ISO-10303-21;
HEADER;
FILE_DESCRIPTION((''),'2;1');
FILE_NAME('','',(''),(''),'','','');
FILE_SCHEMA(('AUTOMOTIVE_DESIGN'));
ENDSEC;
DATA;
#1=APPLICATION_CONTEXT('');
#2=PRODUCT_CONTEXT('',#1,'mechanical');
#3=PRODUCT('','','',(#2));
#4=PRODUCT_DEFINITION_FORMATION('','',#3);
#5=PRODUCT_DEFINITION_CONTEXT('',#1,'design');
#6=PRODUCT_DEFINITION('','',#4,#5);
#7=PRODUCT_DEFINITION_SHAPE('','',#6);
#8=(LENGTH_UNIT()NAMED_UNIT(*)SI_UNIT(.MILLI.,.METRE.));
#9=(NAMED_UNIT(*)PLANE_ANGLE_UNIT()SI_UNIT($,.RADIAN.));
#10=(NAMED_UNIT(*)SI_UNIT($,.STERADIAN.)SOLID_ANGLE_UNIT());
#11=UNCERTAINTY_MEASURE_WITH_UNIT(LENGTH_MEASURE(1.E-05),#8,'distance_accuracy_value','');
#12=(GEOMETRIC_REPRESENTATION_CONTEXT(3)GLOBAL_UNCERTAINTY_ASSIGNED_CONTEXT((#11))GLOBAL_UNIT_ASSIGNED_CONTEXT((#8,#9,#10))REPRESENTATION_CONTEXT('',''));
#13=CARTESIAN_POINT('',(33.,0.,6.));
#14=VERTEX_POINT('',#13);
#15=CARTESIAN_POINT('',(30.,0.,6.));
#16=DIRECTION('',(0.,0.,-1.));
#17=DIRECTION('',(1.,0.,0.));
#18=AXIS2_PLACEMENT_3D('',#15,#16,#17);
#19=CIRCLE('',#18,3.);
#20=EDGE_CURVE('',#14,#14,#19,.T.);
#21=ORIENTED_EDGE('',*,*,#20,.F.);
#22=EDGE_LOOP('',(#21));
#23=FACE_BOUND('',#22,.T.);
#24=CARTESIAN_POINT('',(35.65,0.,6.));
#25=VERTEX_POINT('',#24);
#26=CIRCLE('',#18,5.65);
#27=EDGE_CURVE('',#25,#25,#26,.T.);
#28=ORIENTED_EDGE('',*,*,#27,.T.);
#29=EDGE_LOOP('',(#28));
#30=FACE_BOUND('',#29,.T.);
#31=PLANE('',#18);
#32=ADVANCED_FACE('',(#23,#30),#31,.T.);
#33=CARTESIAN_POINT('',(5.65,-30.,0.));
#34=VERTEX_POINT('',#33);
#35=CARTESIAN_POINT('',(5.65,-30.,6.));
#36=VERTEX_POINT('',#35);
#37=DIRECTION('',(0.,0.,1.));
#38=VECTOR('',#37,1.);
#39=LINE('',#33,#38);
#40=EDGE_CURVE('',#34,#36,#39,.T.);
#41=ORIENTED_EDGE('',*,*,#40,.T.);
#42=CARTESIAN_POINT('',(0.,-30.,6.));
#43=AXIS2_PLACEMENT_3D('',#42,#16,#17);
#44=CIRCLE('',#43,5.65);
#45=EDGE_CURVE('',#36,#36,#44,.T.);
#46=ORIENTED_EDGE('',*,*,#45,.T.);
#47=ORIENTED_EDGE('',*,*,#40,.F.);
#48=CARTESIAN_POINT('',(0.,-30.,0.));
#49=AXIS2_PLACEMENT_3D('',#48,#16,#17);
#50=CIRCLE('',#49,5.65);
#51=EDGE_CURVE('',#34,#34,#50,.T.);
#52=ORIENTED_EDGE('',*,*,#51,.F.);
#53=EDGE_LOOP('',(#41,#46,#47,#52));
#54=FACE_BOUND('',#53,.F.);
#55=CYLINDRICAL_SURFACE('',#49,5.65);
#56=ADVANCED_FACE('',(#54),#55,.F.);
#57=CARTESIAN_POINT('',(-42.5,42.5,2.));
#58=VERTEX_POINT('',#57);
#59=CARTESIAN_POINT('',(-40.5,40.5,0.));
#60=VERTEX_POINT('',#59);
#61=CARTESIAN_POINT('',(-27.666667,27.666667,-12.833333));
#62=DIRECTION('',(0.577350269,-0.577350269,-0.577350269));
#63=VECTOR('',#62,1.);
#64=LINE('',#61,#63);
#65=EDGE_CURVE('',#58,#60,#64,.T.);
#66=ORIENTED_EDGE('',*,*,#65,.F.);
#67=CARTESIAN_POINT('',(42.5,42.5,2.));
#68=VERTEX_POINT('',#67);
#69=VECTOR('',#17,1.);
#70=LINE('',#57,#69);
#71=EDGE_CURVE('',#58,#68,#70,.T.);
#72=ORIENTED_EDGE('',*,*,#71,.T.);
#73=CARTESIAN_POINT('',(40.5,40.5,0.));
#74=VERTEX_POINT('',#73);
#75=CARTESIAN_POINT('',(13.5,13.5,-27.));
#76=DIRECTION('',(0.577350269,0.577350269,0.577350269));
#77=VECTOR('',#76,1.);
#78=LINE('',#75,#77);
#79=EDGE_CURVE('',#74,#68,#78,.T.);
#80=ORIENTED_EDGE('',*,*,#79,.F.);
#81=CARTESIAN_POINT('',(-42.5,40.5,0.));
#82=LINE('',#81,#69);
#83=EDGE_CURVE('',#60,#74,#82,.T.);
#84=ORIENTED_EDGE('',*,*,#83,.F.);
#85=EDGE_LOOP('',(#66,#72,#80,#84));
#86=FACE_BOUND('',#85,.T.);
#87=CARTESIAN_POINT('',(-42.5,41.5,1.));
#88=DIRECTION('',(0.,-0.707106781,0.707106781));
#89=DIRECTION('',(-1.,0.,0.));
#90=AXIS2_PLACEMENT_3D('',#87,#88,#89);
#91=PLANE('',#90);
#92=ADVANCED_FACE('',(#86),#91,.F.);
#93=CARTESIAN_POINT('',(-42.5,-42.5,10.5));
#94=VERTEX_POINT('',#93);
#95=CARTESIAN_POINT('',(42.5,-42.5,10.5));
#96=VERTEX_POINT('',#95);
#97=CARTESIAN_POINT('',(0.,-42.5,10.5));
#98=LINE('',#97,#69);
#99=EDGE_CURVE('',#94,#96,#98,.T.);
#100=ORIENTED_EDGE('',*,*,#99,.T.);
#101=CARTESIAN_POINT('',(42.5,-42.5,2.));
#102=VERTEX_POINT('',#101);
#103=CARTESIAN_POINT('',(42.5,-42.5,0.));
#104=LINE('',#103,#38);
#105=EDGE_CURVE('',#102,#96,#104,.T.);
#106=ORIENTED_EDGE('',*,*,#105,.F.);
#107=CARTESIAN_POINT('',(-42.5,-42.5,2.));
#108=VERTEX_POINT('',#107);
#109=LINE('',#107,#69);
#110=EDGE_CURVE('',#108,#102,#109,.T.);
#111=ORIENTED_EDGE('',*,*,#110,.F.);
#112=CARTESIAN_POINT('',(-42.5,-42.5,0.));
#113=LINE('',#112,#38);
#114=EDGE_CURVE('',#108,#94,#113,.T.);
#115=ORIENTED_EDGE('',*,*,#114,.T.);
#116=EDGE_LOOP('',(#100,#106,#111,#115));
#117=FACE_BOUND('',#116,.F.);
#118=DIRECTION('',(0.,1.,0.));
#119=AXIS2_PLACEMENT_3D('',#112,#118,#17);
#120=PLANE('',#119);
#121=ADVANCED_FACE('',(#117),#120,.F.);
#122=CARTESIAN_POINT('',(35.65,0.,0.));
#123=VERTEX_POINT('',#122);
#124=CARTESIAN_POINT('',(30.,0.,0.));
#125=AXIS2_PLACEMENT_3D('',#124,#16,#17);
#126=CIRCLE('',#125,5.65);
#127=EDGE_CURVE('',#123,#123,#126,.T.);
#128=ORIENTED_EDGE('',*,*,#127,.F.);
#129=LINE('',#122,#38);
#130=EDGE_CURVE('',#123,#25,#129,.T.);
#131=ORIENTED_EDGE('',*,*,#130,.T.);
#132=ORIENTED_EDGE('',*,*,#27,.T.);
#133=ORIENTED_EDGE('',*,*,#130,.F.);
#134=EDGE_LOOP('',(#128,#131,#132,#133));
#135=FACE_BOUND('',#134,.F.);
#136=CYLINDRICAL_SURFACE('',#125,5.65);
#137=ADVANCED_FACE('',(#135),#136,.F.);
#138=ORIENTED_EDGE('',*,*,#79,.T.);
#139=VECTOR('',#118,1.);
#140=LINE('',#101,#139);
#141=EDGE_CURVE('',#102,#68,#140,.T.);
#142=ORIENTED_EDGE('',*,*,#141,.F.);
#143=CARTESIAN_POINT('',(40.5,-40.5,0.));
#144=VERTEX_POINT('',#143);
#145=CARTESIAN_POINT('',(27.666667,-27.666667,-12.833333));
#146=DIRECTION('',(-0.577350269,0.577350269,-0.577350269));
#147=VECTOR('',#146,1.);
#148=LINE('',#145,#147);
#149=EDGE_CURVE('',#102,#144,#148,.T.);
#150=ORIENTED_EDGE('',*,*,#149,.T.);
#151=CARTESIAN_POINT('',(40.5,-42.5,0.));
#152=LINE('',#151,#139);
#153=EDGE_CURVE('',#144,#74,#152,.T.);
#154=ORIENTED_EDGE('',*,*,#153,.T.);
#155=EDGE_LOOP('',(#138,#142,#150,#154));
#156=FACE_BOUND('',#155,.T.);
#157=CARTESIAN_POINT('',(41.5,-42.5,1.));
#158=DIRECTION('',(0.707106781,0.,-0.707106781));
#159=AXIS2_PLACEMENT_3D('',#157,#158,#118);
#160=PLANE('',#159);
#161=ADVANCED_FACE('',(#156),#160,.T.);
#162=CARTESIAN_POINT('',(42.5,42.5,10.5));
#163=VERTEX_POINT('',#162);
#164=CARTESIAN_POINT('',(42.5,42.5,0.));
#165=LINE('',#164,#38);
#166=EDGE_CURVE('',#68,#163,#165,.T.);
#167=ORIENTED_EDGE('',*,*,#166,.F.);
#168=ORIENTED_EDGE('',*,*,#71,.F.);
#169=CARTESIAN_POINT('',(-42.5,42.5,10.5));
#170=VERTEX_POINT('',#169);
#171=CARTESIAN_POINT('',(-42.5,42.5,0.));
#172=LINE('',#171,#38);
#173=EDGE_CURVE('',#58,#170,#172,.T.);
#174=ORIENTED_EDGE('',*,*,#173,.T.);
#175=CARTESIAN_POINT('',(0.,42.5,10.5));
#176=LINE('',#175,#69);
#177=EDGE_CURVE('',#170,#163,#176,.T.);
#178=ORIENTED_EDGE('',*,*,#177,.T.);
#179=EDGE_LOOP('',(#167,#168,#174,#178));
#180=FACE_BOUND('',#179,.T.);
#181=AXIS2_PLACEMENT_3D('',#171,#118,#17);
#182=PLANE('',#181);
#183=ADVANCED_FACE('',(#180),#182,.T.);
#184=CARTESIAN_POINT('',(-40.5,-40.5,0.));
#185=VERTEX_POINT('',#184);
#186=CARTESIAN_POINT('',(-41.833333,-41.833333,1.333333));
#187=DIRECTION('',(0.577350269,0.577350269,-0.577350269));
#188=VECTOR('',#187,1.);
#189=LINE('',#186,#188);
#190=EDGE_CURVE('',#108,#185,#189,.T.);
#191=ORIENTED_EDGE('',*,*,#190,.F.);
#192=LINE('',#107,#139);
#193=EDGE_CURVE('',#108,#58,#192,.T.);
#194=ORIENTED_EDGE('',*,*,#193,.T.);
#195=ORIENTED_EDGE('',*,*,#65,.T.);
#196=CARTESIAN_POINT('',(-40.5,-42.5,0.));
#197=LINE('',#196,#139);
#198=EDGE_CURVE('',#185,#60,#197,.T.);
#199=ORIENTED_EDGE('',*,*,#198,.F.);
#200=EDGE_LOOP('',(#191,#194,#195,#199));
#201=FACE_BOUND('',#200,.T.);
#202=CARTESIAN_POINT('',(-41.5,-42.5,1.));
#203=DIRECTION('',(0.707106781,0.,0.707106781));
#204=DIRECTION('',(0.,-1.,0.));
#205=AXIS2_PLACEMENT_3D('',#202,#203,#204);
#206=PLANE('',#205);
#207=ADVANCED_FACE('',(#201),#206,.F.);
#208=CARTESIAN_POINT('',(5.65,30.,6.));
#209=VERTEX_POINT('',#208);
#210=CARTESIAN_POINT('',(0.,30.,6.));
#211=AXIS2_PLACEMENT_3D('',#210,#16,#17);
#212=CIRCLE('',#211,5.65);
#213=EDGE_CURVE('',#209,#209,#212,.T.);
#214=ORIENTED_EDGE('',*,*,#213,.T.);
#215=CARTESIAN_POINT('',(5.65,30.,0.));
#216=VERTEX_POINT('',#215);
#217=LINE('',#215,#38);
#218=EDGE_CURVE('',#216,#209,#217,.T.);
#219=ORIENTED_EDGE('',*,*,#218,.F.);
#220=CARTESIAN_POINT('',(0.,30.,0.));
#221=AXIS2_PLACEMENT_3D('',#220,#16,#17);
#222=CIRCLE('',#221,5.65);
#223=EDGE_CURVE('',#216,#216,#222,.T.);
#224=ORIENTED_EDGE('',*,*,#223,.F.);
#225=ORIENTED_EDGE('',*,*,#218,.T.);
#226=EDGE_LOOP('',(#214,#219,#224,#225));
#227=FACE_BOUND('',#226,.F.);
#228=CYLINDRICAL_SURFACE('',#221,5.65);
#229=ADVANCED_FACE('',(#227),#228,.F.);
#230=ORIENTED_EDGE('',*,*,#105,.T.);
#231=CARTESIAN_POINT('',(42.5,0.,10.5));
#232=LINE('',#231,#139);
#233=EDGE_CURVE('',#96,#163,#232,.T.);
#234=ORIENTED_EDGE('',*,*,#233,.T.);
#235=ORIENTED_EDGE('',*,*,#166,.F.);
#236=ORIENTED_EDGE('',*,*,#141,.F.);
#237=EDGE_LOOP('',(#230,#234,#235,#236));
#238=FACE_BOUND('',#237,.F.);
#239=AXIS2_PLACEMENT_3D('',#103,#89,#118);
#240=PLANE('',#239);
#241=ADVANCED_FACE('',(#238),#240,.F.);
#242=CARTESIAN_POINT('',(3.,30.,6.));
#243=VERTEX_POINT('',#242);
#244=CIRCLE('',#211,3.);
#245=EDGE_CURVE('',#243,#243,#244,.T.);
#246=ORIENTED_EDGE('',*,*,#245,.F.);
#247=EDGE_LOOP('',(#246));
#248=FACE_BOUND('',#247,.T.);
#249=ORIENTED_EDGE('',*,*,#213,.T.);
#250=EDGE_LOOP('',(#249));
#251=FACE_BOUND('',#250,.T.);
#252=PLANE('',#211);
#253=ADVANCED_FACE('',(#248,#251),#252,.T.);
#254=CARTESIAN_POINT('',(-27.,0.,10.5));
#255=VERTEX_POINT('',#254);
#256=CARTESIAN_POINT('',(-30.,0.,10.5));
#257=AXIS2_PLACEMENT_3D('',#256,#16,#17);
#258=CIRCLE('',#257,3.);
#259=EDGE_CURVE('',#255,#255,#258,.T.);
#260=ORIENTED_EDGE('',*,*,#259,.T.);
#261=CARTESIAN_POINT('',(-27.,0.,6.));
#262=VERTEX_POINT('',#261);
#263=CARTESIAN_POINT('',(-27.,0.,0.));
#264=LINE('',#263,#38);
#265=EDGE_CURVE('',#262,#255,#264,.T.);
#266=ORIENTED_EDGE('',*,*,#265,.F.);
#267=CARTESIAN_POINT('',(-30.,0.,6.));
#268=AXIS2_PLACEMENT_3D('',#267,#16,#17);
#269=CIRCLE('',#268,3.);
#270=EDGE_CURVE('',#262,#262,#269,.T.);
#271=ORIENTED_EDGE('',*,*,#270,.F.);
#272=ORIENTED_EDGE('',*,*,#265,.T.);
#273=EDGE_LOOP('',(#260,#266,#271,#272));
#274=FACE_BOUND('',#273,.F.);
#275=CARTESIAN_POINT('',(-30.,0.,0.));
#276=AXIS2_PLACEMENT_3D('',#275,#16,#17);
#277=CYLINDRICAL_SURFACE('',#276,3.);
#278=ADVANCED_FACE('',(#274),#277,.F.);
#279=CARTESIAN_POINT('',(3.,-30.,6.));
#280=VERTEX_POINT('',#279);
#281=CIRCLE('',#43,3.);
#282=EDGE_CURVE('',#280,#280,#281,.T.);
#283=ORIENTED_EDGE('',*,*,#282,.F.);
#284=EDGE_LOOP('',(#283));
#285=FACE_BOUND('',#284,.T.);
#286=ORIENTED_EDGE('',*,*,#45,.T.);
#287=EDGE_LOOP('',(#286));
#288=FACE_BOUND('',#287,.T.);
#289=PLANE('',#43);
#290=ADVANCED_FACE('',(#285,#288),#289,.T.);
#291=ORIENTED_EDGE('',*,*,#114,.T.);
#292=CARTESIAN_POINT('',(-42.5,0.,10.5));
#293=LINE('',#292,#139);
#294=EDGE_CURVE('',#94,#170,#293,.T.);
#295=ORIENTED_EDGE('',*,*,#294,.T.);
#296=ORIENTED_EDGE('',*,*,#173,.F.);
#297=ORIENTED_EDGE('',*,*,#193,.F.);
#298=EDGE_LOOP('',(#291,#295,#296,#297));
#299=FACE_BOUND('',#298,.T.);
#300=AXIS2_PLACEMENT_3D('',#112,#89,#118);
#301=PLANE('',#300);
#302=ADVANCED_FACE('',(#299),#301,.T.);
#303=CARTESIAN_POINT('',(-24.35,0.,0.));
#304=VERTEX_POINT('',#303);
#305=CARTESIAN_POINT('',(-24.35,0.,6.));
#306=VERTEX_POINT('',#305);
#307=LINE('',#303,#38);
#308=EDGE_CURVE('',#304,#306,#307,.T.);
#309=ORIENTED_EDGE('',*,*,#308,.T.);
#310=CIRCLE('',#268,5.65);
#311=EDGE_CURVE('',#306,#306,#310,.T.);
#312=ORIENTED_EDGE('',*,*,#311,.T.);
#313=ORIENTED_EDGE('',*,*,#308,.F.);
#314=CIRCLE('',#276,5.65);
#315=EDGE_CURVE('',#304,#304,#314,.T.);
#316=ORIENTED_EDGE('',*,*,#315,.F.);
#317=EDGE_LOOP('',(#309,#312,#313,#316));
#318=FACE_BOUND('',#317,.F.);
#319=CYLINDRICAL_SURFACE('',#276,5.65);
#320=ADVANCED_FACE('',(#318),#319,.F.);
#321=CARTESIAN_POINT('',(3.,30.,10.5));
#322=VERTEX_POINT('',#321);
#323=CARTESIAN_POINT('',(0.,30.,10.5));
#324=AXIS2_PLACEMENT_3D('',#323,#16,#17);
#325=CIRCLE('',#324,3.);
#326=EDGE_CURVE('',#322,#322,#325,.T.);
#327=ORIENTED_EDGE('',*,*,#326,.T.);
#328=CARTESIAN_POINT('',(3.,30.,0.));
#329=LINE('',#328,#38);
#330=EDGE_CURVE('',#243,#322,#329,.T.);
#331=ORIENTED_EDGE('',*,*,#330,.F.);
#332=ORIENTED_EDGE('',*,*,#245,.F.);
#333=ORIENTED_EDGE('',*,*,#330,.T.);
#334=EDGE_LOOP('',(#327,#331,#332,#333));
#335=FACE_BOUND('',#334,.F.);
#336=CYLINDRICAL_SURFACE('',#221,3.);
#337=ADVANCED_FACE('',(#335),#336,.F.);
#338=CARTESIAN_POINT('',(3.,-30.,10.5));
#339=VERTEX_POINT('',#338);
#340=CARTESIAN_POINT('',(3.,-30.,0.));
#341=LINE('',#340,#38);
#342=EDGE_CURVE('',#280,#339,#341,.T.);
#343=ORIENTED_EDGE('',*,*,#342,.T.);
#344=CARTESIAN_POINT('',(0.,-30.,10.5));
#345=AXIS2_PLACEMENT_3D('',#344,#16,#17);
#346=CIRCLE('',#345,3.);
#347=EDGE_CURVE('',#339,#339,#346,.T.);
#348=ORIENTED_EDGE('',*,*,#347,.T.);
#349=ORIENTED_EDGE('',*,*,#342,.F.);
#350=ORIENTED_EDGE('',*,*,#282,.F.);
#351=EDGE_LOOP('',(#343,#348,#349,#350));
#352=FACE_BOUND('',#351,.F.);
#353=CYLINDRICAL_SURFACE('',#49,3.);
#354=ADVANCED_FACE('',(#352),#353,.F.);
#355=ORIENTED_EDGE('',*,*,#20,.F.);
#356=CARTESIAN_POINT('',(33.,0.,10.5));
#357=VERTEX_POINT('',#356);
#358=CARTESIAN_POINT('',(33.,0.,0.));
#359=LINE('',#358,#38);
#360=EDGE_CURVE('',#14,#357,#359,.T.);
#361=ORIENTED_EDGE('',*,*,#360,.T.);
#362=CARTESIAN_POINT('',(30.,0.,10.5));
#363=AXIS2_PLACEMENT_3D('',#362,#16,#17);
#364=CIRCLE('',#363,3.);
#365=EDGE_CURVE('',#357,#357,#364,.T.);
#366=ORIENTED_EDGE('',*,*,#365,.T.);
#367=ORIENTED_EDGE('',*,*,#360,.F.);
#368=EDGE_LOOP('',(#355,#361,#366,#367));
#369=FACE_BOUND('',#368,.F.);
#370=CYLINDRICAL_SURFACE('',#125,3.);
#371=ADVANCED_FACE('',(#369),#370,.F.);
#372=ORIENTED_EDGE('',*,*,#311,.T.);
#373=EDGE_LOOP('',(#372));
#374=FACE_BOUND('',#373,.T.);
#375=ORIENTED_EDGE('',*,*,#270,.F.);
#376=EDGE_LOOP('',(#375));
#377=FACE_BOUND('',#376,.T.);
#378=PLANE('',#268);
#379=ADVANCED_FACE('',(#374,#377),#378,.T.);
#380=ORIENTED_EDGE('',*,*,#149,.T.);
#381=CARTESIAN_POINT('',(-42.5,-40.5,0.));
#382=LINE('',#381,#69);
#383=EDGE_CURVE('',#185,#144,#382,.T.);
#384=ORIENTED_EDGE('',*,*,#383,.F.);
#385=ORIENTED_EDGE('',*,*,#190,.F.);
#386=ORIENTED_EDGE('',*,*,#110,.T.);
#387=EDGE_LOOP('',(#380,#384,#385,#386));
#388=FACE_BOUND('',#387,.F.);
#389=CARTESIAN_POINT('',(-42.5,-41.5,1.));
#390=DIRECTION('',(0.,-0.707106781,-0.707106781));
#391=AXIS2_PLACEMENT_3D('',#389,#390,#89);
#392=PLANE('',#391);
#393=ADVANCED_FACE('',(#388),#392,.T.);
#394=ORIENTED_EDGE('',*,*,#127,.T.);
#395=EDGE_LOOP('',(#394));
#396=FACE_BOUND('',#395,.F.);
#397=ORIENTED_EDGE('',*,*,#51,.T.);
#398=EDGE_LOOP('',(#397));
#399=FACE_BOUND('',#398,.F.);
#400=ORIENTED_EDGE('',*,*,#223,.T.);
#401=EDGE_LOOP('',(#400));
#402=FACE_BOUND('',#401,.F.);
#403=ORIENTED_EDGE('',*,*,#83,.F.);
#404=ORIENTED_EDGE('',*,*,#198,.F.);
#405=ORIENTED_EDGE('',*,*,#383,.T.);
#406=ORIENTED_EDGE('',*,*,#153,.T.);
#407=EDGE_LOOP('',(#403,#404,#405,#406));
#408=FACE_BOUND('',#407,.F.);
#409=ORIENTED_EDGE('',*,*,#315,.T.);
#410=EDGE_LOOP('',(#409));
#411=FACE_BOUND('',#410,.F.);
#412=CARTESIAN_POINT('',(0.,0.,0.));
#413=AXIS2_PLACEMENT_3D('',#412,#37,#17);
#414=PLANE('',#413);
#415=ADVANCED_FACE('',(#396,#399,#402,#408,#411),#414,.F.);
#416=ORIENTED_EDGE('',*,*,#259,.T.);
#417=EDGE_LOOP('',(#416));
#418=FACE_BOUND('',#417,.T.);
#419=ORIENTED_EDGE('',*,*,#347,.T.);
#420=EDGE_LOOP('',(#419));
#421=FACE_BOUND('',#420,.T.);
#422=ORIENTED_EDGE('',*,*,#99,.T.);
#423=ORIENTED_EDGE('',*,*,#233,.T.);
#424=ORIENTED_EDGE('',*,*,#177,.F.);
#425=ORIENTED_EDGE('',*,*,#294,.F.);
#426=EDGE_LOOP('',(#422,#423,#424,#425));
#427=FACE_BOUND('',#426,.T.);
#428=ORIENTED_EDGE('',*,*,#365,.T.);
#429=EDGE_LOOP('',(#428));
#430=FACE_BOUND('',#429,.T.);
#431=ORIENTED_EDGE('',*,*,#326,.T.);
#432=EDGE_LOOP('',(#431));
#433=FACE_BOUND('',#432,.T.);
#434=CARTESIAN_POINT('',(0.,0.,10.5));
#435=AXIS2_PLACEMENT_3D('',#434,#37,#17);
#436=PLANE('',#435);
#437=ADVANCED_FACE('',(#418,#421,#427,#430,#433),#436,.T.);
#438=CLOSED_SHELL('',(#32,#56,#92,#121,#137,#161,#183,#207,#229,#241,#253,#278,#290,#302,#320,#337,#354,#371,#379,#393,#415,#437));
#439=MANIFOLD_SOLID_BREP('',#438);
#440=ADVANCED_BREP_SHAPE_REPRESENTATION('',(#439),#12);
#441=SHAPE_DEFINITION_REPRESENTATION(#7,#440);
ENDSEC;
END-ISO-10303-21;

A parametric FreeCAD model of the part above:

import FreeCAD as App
import Part
import Sketcher
from FreeCAD import Vector


def edges_at(feature, points):
    """Names of the edges that pass closest to the given points."""
    edges = feature.Shape.Edges
    near = lambda p: min(range(len(edges)), key=lambda i: edges[i].distToShape(Part.Vertex(*p))[0])
    return sorted({f"Edge{near(p) + 1}" for p in points})


def add_polygon(sketch, points):
    """Adds a closed chain of lines whose ends are joined by coincident constraints."""
    first, n = sketch.GeometryCount, len(points)
    for a, b in zip(points, points[1:] + points[:1]):
        sketch.addGeometry(Part.LineSegment(App.Vector(*a, 0), App.Vector(*b, 0)), False)
    for i in range(n):
        sketch.addConstraint(Sketcher.Constraint("Coincident", first + i, 2, first + (i + 1) % n, 1))

doc = App.newDocument("Part")
body = doc.addObject("PartDesign::Body", "Body")

# Sketch on XY plane
sketch1 = body.newObject("Sketcher::SketchObject", "Sketch")
sketch1.AttachmentSupport = (doc.getObject("XY_Plane"), [""])
sketch1.MapMode = "FlatFace"
add_polygon(sketch1, [(-42, 42), (-42, -42), (42, -42), (42, 42)])  # lines 0-3
sketch1.addConstraint(Sketcher.Constraint("Vertical", 0))
sketch1.addConstraint(Sketcher.Constraint("Horizontal", 1))
sketch1.addConstraint(Sketcher.Constraint("Vertical", 2))
sketch1.addConstraint(Sketcher.Constraint("Horizontal", 3))
sketch1.addConstraint(Sketcher.Constraint("Symmetric", 0, 2, 2, 2, -1, 1))
sketch1.addConstraint(Sketcher.Constraint("Equal", 3, 0))
sketch1.addConstraint(Sketcher.Constraint("DistanceX", 1, 1, 1, 2, 85.0))
pad1 = body.newObject("PartDesign::Pad", "Pad")
pad1.Profile = sketch1
pad1.Length = 10.5

# Sketch on XY plane
sketch2 = body.newObject("Sketcher::SketchObject", "Sketch001")
sketch2.AttachmentSupport = (doc.getObject("XY_Plane"), [""])
sketch2.MapMode = "FlatFace"
sketch2.addGeometry(Part.Circle(Vector(0, -30, 0), Vector(0, 0, 1), 3), False)
sketch2.addGeometry(Part.Circle(Vector(0, 30, 0), Vector(0, 0, 1), 3), False)
sketch2.addGeometry(Part.Circle(Vector(30, 0, 0), Vector(0, 0, 1), 3), False)
sketch2.addGeometry(Part.Circle(Vector(-30, 0, 0), Vector(0, 0, 1), 3), False)
sketch2.addConstraint(Sketcher.Constraint("Equal", 0, 1))
sketch2.addConstraint(Sketcher.Constraint("Equal", 1, 2))
sketch2.addConstraint(Sketcher.Constraint("Equal", 2, 3))
sketch2.addConstraint(Sketcher.Constraint("Symmetric", 0, 3, 1, 3, -1, 1))
sketch2.addConstraint(Sketcher.Constraint("Symmetric", 2, 3, 3, 3, -1, 1))
sketch2.addConstraint(Sketcher.Constraint("PointOnObject", 0, 3, -2))
sketch2.addConstraint(Sketcher.Constraint("PointOnObject", 2, 3, -1))
sketch2.addConstraint(Sketcher.Constraint("Diameter", 0, 6.0))
sketch2.addConstraint(Sketcher.Constraint("DistanceY", 0, 3, -1, 1, 30.0))
sketch2.addConstraint(Sketcher.Constraint("DistanceX", -1, 1, 2, 3, 30.0))
pocket1 = body.newObject("PartDesign::Pocket", "Pocket")
pocket1.Profile = sketch2
pocket1.Length = 25
pocket1.Reversed = True

# Sketch on XY plane
sketch3 = body.newObject("Sketcher::SketchObject", "Sketch002")
sketch3.AttachmentSupport = (doc.getObject("XY_Plane"), [""])
sketch3.MapMode = "FlatFace"
sketch3.addGeometry(Part.Circle(Vector(0, -30, 0), Vector(0, 0, 1), 5.7), False)
sketch3.addGeometry(Part.Circle(Vector(0, -30, 0), Vector(0, 0, 1), 3), False)
sketch3.addGeometry(Part.Circle(Vector(30, 0, 0), Vector(0, 0, 1), 5.7), False)
sketch3.addGeometry(Part.Circle(Vector(30, 0, 0), Vector(0, 0, 1), 3), False)
sketch3.addGeometry(Part.Circle(Vector(0, 30, 0), Vector(0, 0, 1), 5.7), False)
sketch3.addGeometry(Part.Circle(Vector(0, 30, 0), Vector(0, 0, 1), 3), False)
sketch3.addGeometry(Part.Circle(Vector(-30, 0, 0), Vector(0, 0, 1), 5.7), False)
sketch3.addGeometry(Part.Circle(Vector(-30, 0, 0), Vector(0, 0, 1), 3), False)
sketch3.addConstraint(Sketcher.Constraint("Coincident", 1, 3, 0, 3))
sketch3.addConstraint(Sketcher.Constraint("Coincident", 3, 3, 2, 3))
sketch3.addConstraint(Sketcher.Constraint("Coincident", 5, 3, 4, 3))
sketch3.addConstraint(Sketcher.Constraint("Coincident", 7, 3, 6, 3))
sketch3.addConstraint(Sketcher.Constraint("Equal", 0, 2))
sketch3.addConstraint(Sketcher.Constraint("Equal", 1, 3))
sketch3.addConstraint(Sketcher.Constraint("Equal", 2, 4))
sketch3.addConstraint(Sketcher.Constraint("Equal", 3, 5))
sketch3.addConstraint(Sketcher.Constraint("Equal", 4, 6))
sketch3.addConstraint(Sketcher.Constraint("Equal", 5, 7))
sketch3.addConstraint(Sketcher.Constraint("Symmetric", 0, 3, 4, 3, -1, 1))
sketch3.addConstraint(Sketcher.Constraint("Symmetric", 2, 3, 6, 3, -1, 1))
sketch3.addConstraint(Sketcher.Constraint("PointOnObject", 0, 3, -2))
sketch3.addConstraint(Sketcher.Constraint("PointOnObject", 2, 3, -1))
sketch3.addConstraint(Sketcher.Constraint("Diameter", 1, 6.0))
sketch3.addConstraint(Sketcher.Constraint("Diameter", 0, 11.3))
sketch3.addConstraint(Sketcher.Constraint("DistanceY", 0, 3, -1, 1, 30.0))
sketch3.addConstraint(Sketcher.Constraint("DistanceX", -1, 1, 2, 3, 30.0))
pocket2 = body.newObject("PartDesign::Pocket", "Pocket001")
pocket2.Profile = sketch3
pocket2.Length = 6
pocket2.Reversed = True
doc.recompute()

chamfer = body.newObject("PartDesign::Chamfer", "Chamfer")
chamfer.Base = (pocket2, edges_at(pocket2, [
    (-42.5, 0, 0),
    (0, -42.5, 0),
    (42.5, 0, 0),
    (0, 42.5, 0),
]))
chamfer.Size = 2

doc.recompute()
